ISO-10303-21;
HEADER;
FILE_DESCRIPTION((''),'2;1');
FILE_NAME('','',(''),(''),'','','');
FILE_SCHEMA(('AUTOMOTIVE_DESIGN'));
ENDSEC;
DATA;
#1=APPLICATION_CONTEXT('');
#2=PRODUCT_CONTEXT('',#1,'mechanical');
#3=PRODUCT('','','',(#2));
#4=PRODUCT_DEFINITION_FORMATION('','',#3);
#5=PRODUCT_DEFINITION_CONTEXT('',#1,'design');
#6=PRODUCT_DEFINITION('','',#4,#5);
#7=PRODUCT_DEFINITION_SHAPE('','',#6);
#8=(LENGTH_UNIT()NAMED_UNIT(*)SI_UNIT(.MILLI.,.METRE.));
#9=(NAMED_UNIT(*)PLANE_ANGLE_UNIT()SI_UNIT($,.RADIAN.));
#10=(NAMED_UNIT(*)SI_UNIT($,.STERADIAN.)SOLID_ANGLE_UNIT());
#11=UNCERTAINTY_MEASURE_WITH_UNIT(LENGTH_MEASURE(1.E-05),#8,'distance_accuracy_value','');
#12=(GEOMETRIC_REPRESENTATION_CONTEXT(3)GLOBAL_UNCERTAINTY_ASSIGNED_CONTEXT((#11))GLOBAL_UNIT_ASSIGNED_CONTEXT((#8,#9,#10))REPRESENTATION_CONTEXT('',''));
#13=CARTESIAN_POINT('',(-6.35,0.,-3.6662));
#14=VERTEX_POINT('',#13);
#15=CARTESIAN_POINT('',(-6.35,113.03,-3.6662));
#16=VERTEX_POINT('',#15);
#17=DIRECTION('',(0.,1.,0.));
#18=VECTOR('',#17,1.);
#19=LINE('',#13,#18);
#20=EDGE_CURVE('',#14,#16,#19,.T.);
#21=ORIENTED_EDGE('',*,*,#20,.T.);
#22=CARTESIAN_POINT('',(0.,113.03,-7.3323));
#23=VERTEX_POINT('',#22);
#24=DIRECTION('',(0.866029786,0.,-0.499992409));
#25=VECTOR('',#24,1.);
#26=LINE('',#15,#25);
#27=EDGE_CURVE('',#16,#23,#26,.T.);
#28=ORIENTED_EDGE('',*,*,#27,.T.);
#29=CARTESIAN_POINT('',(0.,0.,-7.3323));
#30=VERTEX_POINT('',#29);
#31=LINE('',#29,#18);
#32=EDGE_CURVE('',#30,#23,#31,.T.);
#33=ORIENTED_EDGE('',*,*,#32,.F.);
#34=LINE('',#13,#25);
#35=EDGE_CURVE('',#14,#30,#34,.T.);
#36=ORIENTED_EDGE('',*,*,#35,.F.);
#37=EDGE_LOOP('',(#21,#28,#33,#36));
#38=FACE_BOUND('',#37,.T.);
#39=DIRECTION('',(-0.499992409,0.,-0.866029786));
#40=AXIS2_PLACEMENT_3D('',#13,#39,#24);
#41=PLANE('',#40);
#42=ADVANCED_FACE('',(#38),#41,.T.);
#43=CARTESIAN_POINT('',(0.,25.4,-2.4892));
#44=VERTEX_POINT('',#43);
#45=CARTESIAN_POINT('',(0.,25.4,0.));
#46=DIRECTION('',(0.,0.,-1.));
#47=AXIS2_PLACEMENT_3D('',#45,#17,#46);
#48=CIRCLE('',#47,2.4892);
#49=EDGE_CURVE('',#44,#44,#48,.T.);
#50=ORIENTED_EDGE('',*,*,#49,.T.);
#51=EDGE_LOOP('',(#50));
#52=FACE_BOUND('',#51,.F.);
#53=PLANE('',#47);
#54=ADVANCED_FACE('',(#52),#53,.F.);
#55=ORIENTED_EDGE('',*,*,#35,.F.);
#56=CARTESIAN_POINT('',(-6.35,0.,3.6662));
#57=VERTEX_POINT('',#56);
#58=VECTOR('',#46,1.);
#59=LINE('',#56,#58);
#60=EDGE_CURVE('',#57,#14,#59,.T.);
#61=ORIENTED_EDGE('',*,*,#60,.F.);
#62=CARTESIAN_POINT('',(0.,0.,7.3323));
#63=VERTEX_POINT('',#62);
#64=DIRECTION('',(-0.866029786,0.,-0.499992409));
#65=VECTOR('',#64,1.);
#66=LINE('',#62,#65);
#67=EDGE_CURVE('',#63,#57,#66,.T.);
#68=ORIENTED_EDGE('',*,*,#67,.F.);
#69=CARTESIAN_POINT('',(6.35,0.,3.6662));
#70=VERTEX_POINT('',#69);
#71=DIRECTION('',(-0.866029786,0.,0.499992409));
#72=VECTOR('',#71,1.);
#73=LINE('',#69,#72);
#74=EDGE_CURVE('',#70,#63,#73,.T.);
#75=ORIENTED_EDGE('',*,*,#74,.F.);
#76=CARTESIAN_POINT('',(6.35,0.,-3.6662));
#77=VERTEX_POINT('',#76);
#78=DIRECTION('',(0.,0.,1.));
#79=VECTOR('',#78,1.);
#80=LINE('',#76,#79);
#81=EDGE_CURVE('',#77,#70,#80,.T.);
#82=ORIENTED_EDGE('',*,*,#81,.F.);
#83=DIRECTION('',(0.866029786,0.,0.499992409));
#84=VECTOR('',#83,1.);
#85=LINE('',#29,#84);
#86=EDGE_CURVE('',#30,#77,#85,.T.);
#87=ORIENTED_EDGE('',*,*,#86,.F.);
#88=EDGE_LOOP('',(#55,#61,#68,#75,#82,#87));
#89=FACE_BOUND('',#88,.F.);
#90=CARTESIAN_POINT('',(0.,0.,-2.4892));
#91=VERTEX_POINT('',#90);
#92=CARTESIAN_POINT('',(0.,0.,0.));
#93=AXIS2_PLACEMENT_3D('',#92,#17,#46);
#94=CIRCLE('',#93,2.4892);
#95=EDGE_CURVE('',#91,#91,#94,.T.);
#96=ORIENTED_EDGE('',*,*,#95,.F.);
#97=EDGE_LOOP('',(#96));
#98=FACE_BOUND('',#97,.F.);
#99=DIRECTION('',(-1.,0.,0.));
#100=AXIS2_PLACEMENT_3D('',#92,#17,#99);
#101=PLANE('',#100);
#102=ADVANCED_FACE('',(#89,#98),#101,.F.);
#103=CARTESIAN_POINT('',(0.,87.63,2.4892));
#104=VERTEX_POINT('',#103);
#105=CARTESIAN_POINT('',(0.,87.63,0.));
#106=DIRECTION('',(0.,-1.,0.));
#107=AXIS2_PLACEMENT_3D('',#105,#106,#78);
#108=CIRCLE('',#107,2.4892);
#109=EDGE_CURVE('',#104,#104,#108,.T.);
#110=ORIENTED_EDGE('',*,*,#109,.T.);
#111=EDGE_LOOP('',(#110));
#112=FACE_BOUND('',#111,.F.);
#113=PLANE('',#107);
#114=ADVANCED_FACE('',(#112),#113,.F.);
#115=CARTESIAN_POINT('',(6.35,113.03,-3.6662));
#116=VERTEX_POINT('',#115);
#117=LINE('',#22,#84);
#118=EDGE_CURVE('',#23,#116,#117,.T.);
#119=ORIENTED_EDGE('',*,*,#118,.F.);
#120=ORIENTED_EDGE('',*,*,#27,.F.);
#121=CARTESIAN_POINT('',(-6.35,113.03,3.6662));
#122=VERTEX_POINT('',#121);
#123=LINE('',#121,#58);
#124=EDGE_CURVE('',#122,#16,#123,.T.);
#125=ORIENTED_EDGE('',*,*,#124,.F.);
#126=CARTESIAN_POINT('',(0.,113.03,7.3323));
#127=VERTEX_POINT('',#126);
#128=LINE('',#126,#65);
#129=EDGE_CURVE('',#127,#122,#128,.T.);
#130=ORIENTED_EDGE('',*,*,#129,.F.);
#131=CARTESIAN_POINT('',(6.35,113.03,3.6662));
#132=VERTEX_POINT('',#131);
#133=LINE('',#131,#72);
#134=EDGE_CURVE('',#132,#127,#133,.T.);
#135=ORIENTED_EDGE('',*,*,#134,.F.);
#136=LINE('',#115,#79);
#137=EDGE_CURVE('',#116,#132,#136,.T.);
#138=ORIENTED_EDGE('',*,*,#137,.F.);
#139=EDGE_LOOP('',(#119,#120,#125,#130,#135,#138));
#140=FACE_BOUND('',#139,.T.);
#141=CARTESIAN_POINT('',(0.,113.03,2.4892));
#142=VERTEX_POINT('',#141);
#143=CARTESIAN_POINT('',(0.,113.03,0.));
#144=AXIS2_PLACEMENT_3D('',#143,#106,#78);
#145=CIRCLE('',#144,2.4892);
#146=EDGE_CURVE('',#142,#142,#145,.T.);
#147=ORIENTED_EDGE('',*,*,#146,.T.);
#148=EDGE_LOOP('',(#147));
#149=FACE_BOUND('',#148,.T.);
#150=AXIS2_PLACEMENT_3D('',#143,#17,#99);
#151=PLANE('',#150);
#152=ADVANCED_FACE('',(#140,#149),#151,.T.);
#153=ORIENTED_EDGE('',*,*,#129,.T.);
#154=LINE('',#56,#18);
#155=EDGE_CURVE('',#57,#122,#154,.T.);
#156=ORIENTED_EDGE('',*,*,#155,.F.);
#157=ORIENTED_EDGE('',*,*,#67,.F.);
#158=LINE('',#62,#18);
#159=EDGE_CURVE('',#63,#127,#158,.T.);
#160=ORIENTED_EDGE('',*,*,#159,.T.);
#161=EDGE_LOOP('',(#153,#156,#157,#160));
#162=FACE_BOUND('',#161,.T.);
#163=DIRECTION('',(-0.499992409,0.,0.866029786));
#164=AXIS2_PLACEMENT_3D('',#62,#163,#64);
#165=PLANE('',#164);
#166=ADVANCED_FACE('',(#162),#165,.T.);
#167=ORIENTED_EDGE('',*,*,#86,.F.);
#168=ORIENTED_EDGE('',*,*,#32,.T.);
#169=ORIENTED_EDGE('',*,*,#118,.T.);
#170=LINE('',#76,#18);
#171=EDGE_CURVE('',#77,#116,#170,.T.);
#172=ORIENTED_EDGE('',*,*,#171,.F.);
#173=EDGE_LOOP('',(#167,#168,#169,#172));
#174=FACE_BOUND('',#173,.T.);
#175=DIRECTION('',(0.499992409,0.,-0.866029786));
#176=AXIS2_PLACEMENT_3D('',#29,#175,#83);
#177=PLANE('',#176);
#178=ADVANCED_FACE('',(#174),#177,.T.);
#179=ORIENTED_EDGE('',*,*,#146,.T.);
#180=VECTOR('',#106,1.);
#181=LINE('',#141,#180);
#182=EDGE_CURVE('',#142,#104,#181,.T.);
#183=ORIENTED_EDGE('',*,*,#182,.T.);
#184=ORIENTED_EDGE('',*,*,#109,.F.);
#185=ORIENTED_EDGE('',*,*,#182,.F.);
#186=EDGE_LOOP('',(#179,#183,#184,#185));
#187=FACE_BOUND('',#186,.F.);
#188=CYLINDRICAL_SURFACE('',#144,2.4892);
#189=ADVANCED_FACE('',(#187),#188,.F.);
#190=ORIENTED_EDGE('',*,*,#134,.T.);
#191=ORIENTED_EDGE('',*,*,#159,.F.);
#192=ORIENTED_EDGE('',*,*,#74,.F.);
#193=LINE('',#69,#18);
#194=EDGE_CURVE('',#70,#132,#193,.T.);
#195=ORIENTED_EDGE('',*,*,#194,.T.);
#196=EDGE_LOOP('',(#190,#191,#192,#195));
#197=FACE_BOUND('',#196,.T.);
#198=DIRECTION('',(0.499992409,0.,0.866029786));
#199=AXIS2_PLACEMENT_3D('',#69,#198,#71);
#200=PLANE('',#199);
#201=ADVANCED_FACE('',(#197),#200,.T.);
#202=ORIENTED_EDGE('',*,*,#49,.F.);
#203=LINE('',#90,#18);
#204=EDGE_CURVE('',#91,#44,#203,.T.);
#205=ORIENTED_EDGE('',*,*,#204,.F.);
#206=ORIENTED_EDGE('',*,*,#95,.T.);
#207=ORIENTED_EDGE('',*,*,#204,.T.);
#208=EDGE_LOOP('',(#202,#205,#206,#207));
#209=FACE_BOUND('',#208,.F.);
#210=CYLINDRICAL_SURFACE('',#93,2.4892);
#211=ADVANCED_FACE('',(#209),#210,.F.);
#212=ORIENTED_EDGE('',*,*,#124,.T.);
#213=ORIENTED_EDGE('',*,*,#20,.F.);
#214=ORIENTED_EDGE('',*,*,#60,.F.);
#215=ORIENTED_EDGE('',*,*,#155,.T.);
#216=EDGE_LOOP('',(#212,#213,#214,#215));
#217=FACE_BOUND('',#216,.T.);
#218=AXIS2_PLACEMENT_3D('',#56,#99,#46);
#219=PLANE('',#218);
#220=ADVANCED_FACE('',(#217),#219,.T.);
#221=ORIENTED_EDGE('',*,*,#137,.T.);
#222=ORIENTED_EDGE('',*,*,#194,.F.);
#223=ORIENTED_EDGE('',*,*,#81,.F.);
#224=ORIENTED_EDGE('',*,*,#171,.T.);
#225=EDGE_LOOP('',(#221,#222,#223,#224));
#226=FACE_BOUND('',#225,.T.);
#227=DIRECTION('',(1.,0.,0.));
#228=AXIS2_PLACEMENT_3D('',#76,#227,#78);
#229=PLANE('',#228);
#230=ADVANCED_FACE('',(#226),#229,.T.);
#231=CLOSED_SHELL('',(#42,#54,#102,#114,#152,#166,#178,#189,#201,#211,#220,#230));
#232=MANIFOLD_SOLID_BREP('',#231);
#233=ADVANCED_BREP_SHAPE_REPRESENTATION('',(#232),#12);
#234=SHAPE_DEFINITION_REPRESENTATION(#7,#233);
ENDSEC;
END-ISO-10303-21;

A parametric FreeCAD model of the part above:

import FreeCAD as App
import Part
import Sketcher
from FreeCAD import Vector
Q = App.Units.Quantity


def add_polygon(sketch, points):
    """Adds a closed chain of lines whose ends are joined by coincident constraints."""
    first, n = sketch.GeometryCount, len(points)
    for a, b in zip(points, points[1:] + points[:1]):
        sketch.addGeometry(Part.LineSegment(App.Vector(*a, 0), App.Vector(*b, 0)), False)
    for i in range(n):
        sketch.addConstraint(Sketcher.Constraint("Coincident", first + i, 2, first + (i + 1) % n, 1))

doc = App.newDocument("Part")
body = doc.addObject("PartDesign::Body", "Body")

sketch1 = doc.addObject("Sketcher::SketchObject", "Sketch")
body.addObject(sketch1)
sketch1.AttachmentSupport = (doc.XZ_Plane, [""])
sketch1.MapMode = "FlatFace"
add_polygon(sketch1, [(0, -7), (-6, -4), (-6, 4), (0, 7), (6, 4), (6, -4)])
sketch1.addConstraint(Sketcher.Constraint("Vertical", 1))
sketch1.addConstraint(Sketcher.Constraint("Vertical", 4))
sketch1.addConstraint(Sketcher.Constraint("Symmetric", 0, 2, 3, 2, -1, 1))
sketch1.addConstraint(Sketcher.Constraint("Symmetric", 2, 2, 5, 2, -1, 1))
sketch1.addConstraint(Sketcher.Constraint("PointOnObject", 2, 2, -2))
sketch1.addConstraint(Sketcher.Constraint("Parallel", 2, 5))
sketch1.addConstraint(Sketcher.Constraint("Horizontal", 1, 2, 3, 2))
sketch1.addConstraint(Sketcher.Constraint("DistanceX", 1, 2, 3, 2, Q("0.5 in")))
sketch1.addConstraint(Sketcher.Constraint("Angle", 0, Q("150.0005 deg")))
sketch1.addConstraint(Sketcher.Constraint("DistanceY", 0, 2, 2, 2, Q("0.433 in")))
pad1 = doc.addObject("PartDesign::Pad", "Pad")
body.addObject(pad1)
pad1.Profile = sketch1
pad1.Length = Q("4.45 in")
pad1.Reversed = True

sketch2 = doc.addObject("Sketcher::SketchObject", "Sketch001")
body.addObject(sketch2)
sketch2.AttachmentSupport = (doc.XZ_Plane, [""])
sketch2.MapMode = "FlatFace"
sketch2.AttachmentOffset = App.Placement(Vector(0, 0, -4.45 * 25.4), App.Rotation())
sketch2.addGeometry(Part.Circle(Vector(0, 0, 0), Vector(0, 0, 1), 2.5), False)
sketch2.addConstraint(Sketcher.Constraint("Coincident", 0, 3, -1, 1))
sketch2.addConstraint(Sketcher.Constraint("Diameter", 0, Q("0.196 in")))
doc.recompute()
hole = doc.addObject("PartDesign::Hole", "Hole")
body.addObject(hole)
hole.Profile = sketch2
hole.ThreadType = "None"
hole.Diameter = Q("0.196 in")
hole.DepthType = "Dimension"
hole.Depth = Q("1 in")
hole.DrillPoint = "Flat"
hole.Reversed = True

sketch3 = doc.addObject("Sketcher::SketchObject", "Sketch002")
body.addObject(sketch3)
sketch3.AttachmentSupport = (doc.XZ_Plane, [""])
sketch3.MapMode = "FlatFace"
sketch3.addGeometry(Part.Circle(Vector(0, 0, 0), Vector(0, 0, 1), 2.5), False)
sketch3.addConstraint(Sketcher.Constraint("Coincident", 0, 3, -1, 1))
sketch3.addConstraint(Sketcher.Constraint("Diameter", 0, Q("0.196 in")))
doc.recompute()
hole2 = doc.addObject("PartDesign::Hole", "Hole001")
body.addObject(hole2)
hole2.Profile = sketch3
hole2.ThreadType = "None"
hole2.Diameter = Q("0.196 in")
hole2.DepthType = "Dimension"
hole2.Depth = Q("1 in")
hole2.DrillPoint = "Flat"

doc.recompute()
